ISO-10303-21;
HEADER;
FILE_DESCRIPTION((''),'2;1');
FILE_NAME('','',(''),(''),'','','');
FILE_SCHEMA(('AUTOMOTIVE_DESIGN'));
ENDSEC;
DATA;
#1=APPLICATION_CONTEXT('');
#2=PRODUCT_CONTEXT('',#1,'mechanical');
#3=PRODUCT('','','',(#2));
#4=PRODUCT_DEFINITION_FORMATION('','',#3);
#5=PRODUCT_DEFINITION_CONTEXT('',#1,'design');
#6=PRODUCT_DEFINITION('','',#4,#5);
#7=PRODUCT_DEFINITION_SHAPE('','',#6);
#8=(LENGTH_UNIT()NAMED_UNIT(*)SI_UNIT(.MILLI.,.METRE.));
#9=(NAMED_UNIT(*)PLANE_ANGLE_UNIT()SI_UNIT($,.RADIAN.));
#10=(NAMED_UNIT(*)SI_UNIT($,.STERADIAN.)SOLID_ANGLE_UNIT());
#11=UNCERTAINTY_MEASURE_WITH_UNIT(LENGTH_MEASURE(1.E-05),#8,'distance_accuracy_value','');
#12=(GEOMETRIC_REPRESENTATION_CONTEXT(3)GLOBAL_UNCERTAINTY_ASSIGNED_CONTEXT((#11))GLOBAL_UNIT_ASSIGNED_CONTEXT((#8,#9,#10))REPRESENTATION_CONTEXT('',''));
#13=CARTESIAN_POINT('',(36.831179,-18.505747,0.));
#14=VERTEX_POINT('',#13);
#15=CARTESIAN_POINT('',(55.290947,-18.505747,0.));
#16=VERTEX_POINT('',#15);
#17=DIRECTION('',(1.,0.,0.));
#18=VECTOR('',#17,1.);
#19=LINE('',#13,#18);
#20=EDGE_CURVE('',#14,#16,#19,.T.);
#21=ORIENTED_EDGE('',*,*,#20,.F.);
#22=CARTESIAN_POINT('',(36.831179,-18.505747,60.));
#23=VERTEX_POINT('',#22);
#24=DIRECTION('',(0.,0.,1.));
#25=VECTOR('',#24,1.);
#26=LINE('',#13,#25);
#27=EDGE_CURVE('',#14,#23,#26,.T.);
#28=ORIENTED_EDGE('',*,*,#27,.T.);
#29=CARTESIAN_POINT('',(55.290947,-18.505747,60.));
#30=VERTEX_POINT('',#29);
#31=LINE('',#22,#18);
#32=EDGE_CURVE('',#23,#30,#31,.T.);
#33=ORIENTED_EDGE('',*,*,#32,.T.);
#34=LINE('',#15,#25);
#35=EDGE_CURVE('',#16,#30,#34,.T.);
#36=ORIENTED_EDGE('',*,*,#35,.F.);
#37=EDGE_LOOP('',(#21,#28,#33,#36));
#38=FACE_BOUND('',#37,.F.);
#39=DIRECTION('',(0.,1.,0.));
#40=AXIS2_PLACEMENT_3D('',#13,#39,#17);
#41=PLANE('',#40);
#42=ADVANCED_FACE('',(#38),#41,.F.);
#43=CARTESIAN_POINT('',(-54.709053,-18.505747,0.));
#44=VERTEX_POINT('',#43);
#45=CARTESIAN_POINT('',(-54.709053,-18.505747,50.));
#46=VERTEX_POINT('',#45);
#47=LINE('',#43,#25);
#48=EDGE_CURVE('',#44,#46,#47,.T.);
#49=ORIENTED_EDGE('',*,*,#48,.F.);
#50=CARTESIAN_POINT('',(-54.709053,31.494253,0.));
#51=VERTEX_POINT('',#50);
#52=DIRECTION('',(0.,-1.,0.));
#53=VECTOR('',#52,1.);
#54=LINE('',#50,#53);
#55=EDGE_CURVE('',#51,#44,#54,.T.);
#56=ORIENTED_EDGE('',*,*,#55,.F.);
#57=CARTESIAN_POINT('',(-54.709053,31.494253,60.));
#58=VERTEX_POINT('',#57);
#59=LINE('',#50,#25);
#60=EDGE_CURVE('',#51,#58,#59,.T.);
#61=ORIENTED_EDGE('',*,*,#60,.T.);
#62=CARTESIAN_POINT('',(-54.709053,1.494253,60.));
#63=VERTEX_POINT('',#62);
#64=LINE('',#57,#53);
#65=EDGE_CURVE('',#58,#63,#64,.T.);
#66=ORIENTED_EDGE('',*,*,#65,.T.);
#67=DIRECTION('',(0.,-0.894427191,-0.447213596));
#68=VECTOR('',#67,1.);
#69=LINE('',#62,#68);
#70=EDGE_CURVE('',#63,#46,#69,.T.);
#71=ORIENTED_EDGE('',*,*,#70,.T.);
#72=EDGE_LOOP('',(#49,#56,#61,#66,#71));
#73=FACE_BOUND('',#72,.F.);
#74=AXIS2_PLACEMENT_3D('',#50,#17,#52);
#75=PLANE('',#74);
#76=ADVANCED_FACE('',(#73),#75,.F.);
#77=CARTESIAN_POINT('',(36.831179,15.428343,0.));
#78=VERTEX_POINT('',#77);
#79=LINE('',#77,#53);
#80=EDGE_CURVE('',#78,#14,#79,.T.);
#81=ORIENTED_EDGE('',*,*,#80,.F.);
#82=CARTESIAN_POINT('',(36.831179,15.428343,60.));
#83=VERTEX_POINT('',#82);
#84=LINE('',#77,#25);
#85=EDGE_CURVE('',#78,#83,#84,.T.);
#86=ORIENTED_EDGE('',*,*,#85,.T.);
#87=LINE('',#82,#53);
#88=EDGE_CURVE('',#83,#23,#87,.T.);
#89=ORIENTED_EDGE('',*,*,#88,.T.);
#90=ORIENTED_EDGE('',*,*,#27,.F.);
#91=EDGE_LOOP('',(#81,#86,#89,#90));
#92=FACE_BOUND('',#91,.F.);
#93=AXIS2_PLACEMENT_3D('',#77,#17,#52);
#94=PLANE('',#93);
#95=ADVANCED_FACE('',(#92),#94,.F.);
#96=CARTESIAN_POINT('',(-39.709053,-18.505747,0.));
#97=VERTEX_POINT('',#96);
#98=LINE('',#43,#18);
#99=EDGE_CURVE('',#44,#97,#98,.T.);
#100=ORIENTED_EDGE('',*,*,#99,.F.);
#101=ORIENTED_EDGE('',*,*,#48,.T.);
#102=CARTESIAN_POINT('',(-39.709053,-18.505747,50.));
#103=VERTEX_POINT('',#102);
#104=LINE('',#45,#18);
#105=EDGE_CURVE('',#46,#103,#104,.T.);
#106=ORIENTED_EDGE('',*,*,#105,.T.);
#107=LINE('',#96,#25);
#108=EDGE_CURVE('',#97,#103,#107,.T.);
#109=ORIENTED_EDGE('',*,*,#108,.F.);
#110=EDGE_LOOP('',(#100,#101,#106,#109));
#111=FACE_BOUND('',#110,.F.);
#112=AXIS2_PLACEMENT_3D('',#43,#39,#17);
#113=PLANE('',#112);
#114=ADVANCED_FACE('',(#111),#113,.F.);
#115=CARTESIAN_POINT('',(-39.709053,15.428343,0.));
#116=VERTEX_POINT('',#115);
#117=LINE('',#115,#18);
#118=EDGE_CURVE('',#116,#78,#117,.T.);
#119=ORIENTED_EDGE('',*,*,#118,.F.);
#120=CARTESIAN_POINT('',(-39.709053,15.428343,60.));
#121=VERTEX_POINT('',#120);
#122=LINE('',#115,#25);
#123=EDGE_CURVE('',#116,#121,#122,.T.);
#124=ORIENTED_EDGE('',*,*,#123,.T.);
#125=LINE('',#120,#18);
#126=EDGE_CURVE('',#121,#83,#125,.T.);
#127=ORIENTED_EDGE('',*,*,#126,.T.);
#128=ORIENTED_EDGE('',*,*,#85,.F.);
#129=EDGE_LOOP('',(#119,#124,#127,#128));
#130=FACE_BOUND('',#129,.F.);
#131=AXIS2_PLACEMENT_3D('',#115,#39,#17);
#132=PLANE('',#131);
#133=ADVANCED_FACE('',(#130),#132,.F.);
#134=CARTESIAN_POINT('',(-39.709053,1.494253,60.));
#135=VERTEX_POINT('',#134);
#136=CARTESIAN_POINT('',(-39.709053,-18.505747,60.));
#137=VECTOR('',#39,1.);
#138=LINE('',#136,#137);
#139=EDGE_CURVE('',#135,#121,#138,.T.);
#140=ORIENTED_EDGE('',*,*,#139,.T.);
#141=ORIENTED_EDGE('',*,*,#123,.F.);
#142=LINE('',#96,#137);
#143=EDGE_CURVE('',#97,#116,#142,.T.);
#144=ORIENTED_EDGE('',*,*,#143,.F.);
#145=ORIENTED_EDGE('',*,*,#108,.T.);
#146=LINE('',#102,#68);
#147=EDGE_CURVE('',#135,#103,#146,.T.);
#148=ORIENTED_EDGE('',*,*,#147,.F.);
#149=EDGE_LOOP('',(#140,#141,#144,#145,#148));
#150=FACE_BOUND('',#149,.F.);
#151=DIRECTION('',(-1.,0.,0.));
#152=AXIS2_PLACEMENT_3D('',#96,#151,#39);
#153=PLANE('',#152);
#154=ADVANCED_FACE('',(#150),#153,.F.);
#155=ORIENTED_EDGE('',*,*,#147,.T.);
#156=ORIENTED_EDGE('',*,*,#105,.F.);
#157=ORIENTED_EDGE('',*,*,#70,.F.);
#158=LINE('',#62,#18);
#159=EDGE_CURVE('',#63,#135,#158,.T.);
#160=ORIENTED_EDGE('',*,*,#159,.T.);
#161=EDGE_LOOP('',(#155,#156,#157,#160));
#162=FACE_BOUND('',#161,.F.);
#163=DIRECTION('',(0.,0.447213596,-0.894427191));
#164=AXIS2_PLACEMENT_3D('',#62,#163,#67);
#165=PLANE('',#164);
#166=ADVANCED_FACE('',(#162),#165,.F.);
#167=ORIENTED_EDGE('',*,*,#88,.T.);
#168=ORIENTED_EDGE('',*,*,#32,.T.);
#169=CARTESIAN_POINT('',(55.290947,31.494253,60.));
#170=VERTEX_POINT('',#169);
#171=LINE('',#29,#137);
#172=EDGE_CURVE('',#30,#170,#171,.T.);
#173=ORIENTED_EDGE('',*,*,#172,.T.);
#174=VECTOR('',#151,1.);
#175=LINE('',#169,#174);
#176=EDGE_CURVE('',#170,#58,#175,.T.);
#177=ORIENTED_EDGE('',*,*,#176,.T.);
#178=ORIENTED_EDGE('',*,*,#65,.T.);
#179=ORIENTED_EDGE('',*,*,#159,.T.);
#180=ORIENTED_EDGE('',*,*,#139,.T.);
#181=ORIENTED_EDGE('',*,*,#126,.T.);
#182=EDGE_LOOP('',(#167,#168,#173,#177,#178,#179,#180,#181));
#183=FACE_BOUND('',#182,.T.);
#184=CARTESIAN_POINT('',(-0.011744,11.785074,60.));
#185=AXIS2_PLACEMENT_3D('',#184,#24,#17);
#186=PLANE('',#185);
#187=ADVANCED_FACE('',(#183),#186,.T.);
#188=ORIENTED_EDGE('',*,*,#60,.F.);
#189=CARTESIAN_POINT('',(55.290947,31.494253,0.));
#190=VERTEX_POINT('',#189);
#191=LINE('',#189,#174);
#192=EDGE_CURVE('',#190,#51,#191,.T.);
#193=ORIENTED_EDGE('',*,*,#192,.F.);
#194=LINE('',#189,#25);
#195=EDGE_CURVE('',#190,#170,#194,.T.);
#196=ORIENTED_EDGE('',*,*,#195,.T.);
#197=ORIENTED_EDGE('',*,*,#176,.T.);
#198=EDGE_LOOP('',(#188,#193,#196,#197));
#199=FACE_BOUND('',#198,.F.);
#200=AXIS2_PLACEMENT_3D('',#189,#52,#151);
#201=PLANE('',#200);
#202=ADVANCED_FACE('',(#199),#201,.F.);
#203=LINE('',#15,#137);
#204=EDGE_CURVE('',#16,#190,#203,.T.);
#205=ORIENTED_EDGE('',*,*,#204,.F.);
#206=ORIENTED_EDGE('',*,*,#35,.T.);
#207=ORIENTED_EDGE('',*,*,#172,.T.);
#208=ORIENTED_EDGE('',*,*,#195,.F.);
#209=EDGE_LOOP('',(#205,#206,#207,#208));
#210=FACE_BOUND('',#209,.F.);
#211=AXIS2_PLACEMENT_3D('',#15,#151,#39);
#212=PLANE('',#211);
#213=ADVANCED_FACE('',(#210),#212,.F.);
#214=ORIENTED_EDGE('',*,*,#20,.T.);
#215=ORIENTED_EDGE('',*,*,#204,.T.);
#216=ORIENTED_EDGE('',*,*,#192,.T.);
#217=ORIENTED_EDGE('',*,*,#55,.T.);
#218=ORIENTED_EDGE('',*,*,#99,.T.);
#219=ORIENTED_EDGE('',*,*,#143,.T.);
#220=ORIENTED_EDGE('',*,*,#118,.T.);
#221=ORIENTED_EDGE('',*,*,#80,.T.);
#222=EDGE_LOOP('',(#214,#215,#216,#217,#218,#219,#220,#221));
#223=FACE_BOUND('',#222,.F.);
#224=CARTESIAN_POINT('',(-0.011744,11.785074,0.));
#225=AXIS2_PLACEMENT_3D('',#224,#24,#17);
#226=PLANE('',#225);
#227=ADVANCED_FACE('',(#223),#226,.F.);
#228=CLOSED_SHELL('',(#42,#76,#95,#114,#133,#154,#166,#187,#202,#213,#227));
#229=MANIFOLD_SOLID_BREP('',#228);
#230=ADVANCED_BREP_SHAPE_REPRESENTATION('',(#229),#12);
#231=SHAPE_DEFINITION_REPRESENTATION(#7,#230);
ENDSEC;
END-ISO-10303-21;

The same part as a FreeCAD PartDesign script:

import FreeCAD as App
import Part
import Sketcher
Q = App.Units.Quantity

doc = App.newDocument("Part")
body = doc.addObject("PartDesign::Body", "Body")

sketch1 = doc.addObject("Sketcher::SketchObject", "Sketch")
body.addObject(sketch1)
sketch1.AttachmentSupport = (doc.XY_Plane, [""])
sketch1.MapMode = "FlatFace"
sketch1.addGeometry(Part.LineSegment(App.Vector(-55, 31, 0), App.Vector(-55, -19, 0)), False)
sketch1.addGeometry(Part.LineSegment(App.Vector(-55, -19, 0), App.Vector(-40, -19, 0)), False)
sketch1.addGeometry(Part.LineSegment(App.Vector(-40, -19, 0), App.Vector(-40, 15, 0)), False)
sketch1.addGeometry(Part.LineSegment(App.Vector(-40, 15, 0), App.Vector(37, 15, 0)), False)
sketch1.addGeometry(Part.LineSegment(App.Vector(37, 15, 0), App.Vector(37, -19, 0)), False)
sketch1.addGeometry(Part.LineSegment(App.Vector(37, -19, 0), App.Vector(55, -19, 0)), False)
sketch1.addGeometry(Part.LineSegment(App.Vector(55, -19, 0), App.Vector(55, 31, 0)), False)
sketch1.addGeometry(Part.LineSegment(App.Vector(55, 31, 0), App.Vector(-55, 31, 0)), False)
sketch1.addConstraint(Sketcher.Constraint("Coincident", 0, 2, 1, 1))
sketch1.addConstraint(Sketcher.Constraint("Coincident", 1, 2, 2, 1))
sketch1.addConstraint(Sketcher.Constraint("Coincident", 2, 2, 3, 1))
sketch1.addConstraint(Sketcher.Constraint("Coincident", 3, 2, 4, 1))
sketch1.addConstraint(Sketcher.Constraint("Coincident", 4, 2, 5, 1))
sketch1.addConstraint(Sketcher.Constraint("Coincident", 5, 2, 6, 1))
sketch1.addConstraint(Sketcher.Constraint("Coincident", 6, 2, 7, 1))
sketch1.addConstraint(Sketcher.Constraint("Coincident", 7, 2, 0, 1))
sketch1.addConstraint(Sketcher.Constraint("Vertical", 0))
sketch1.addConstraint(Sketcher.Constraint("Horizontal", 1))
sketch1.addConstraint(Sketcher.Constraint("Vertical", 2))
sketch1.addConstraint(Sketcher.Constraint("Horizontal", 3))
sketch1.addConstraint(Sketcher.Constraint("Vertical", 4))
sketch1.addConstraint(Sketcher.Constraint("Horizontal", 5))
sketch1.addConstraint(Sketcher.Constraint("Vertical", 6))
sketch1.addConstraint(Sketcher.Constraint("Horizontal", 7))
sketch1.addConstraint(Sketcher.Constraint("Horizontal", 1, 2, 4, 2))
sketch1.addConstraint(Sketcher.Constraint("DistanceX", 1, 1, 1, 2, Q("15 mm")))
sketch1.addConstraint(Sketcher.Constraint("DistanceX", 7, 2, 7, 1, Q("110 mm")))
sketch1.addConstraint(Sketcher.Constraint("DistanceY", 0, 2, 0, 1, Q("50 mm")))
sketch1.addConstraint(Sketcher.Constraint("DistanceX", 5, 1, 5, 2, Q("18.459768 mm")))
sketch1.addConstraint(Sketcher.Constraint("DistanceY", 2, 1, 2, 2, Q("33.93409 mm")))
sketch1.addConstraint(Sketcher.Constraint("DistanceX", -1, 1, 3, 2, Q("36.831179 mm")))
sketch1.addConstraint(Sketcher.Constraint("DistanceY", 0, 2, -1, 1, Q("18.505747 mm")))
pad1 = doc.addObject("PartDesign::Pad", "Pad")
body.addObject(pad1)
pad1.Profile = sketch1
pad1.Length = 60

sketch2 = doc.addObject("Sketcher::SketchObject", "Sketch001")
body.addObject(sketch2)
sketch2.AttachmentSupport = (doc.YZ_Plane, [""])
sketch2.MapMode = "FlatFace"
sketch2.AttachmentOffset = App.Placement(App.Vector(0, 0, -54.709053), App.Rotation())
sketch2.addGeometry(Part.LineSegment(App.Vector(-19, 60, 0), App.Vector(1, 60, 0)), False)
sketch2.addGeometry(Part.LineSegment(App.Vector(1, 60, 0), App.Vector(-19, 50, 0)), False)
sketch2.addGeometry(Part.LineSegment(App.Vector(-19, 50, 0), App.Vector(-19, 60, 0)), False)
sketch2.addConstraint(Sketcher.Constraint("Coincident", 0, 2, 1, 1))
sketch2.addConstraint(Sketcher.Constraint("Coincident", 1, 2, 2, 1))
sketch2.addConstraint(Sketcher.Constraint("Coincident", 2, 2, 0, 1))
sketch2.addConstraint(Sketcher.Constraint("Horizontal", 0))
sketch2.addConstraint(Sketcher.Constraint("Vertical", 2))
sketch2.addConstraint(Sketcher.Constraint("DistanceX", 0, 1, 0, 2, Q("20 mm")))
sketch2.addConstraint(Sketcher.Constraint("DistanceY", 2, 1, 2, 2, Q("10 mm")))
sketch2.addConstraint(Sketcher.Constraint("DistanceY", -1, 1, 0, 2, Q("60 mm")))
sketch2.addConstraint(Sketcher.Constraint("DistanceX", -1, 1, 0, 2, Q("1.494253 mm")))
pocket1 = doc.addObject("PartDesign::Pocket", "Pocket")
body.addObject(pocket1)
pocket1.Profile = sketch2
pocket1.Length = 25
pocket1.Reversed = True

doc.recompute()
